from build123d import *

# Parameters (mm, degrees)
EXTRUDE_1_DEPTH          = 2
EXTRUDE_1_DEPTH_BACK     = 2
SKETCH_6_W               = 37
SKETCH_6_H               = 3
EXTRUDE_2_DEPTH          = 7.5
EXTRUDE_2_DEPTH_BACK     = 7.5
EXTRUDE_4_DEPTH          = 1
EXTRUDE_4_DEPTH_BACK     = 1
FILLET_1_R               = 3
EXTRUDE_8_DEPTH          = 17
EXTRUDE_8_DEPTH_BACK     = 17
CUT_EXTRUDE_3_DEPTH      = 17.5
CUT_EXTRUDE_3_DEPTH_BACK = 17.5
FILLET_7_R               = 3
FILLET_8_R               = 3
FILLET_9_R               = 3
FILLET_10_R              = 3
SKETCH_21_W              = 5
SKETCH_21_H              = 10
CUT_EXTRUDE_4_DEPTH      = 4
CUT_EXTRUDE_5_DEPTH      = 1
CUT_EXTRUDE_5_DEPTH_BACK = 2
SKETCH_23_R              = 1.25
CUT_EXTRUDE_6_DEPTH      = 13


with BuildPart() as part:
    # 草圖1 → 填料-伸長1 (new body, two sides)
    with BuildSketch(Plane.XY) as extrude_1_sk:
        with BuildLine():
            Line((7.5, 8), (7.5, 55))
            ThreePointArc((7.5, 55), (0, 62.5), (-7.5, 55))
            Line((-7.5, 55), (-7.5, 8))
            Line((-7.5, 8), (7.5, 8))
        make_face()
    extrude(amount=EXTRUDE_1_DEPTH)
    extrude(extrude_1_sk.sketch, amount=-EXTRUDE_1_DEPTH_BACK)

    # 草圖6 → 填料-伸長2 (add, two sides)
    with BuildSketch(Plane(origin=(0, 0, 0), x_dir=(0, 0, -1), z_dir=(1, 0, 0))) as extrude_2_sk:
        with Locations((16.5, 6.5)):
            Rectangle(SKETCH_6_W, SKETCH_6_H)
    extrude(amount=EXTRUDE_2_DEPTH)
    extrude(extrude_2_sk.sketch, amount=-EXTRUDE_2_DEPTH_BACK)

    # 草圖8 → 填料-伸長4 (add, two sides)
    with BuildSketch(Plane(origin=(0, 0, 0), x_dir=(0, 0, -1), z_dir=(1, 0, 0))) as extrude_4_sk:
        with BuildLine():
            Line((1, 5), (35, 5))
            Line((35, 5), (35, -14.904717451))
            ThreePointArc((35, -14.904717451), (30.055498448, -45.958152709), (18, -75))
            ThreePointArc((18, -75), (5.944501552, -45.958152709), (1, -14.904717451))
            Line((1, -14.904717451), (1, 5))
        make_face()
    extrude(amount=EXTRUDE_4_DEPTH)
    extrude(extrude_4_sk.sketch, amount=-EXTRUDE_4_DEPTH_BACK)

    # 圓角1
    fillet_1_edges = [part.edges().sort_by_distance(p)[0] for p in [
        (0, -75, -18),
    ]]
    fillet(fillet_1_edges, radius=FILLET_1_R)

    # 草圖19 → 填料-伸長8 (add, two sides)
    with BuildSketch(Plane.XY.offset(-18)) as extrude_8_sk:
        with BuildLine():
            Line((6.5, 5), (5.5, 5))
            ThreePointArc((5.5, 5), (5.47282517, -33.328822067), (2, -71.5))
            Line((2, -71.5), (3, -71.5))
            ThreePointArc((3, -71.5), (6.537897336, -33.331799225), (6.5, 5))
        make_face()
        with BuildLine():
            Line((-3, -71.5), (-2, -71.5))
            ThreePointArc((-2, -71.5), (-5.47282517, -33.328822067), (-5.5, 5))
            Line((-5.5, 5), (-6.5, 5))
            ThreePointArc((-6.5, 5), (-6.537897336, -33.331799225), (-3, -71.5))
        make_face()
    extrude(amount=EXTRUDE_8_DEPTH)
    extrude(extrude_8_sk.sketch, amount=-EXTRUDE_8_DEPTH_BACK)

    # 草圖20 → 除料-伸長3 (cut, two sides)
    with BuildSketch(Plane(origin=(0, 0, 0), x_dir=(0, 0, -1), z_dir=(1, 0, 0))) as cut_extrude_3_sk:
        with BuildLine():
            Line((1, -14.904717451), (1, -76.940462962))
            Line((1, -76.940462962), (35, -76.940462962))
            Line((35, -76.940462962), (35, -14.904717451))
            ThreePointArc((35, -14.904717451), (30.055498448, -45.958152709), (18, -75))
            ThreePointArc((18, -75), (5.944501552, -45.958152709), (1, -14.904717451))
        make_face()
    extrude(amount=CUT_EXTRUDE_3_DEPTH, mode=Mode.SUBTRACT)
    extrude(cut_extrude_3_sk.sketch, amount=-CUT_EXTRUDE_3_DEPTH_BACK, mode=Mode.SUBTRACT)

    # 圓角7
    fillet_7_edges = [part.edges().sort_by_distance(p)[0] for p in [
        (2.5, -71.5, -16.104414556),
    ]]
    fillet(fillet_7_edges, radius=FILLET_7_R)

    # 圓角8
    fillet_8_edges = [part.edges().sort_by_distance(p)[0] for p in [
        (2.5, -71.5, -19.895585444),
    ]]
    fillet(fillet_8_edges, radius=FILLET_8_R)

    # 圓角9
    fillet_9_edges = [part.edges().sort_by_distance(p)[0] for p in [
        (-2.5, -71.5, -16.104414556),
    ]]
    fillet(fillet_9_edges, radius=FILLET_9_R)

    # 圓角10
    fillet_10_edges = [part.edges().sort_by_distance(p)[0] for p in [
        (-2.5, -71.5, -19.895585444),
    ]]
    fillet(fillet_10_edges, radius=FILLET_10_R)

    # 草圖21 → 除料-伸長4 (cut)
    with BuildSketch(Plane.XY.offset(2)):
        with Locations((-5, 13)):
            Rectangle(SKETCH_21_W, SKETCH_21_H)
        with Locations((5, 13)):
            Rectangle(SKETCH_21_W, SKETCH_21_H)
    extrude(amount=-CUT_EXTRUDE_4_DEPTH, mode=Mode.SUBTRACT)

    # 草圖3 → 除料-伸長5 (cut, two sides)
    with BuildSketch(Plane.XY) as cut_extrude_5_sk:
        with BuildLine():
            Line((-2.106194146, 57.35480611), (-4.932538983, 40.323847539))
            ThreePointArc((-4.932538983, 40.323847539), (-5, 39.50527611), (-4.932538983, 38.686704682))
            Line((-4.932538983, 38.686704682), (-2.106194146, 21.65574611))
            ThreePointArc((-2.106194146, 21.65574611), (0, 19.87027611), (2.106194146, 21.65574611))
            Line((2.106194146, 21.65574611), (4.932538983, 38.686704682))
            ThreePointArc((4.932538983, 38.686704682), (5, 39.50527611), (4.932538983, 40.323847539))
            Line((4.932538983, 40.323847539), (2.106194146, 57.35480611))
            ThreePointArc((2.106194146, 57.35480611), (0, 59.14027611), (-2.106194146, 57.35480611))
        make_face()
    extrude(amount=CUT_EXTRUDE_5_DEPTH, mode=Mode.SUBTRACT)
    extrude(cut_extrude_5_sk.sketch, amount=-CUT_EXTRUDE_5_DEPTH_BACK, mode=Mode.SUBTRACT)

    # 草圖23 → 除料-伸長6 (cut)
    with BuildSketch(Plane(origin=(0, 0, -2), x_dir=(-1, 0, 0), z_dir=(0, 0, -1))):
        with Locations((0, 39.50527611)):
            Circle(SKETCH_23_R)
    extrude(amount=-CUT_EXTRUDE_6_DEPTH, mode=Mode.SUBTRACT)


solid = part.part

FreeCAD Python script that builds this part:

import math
import FreeCAD as App
import Part
import Sketcher
Q = App.Units.Quantity


def edges_at(feature, points):
    """Names of the edges that pass closest to the given points."""
    edges = feature.Shape.Edges
    near = lambda p: min(range(len(edges)), key=lambda i: edges[i].distToShape(Part.Vertex(*p))[0])
    return sorted({f"Edge{near(p) + 1}" for p in points})


def add_polygon(sketch, points):
    """Adds a closed chain of lines whose ends are joined by coincident constraints."""
    first, n = sketch.GeometryCount, len(points)
    for a, b in zip(points, points[1:] + points[:1]):
        sketch.addGeometry(Part.LineSegment(App.Vector(*a, 0), App.Vector(*b, 0)), False)
    for i in range(n):
        sketch.addConstraint(Sketcher.Constraint("Coincident", first + i, 2, first + (i + 1) % n, 1))

doc = App.newDocument("Part")
body = doc.addObject("PartDesign::Body", "Body")

# Sketch on XY plane
sketch1 = doc.addObject("Sketcher::SketchObject", "Sketch")
body.addObject(sketch1)
sketch1.AttachmentSupport = (doc.XY_Plane, [""])
sketch1.MapMode = "FlatFace"
sketch1.addGeometry(Part.LineSegment(App.Vector(8, 8, 0), App.Vector(8, 55, 0)), False)
sketch1.addGeometry(Part.ArcOfCircle(Part.Circle(App.Vector(0, 55, 0), App.Vector(0, 0, 1), 8), math.radians(0), math.radians(180)), False)
sketch1.addGeometry(Part.LineSegment(App.Vector(-8, 55, 0), App.Vector(-8, 8, 0)), False)
sketch1.addGeometry(Part.LineSegment(App.Vector(-8, 8, 0), App.Vector(8, 8, 0)), False)
sketch1.addConstraint(Sketcher.Constraint("Tangent", 0, 2, 1, 1))
sketch1.addConstraint(Sketcher.Constraint("Tangent", 1, 2, 2, 1))
sketch1.addConstraint(Sketcher.Constraint("Coincident", 2, 2, 3, 1))
sketch1.addConstraint(Sketcher.Constraint("Coincident", 3, 2, 0, 1))
sketch1.addConstraint(Sketcher.Constraint("Vertical", 0))
sketch1.addConstraint(Sketcher.Constraint("Vertical", 2))
sketch1.addConstraint(Sketcher.Constraint("Horizontal", 3))
sketch1.addConstraint(Sketcher.Constraint("PointOnObject", 1, 3, -2))
sketch1.addConstraint(Sketcher.Constraint("Radius", 1, Q("7.5 mm")))
sketch1.addConstraint(Sketcher.Constraint("DistanceY", 0, 1, 0, 2, Q("47 mm")))
sketch1.addConstraint(Sketcher.Constraint("DistanceY", -1, 1, 1, 3, Q("55 mm")))
pad1 = doc.addObject("PartDesign::Pad", "Pad")
body.addObject(pad1)
pad1.Profile = sketch1
pad1.Type = "TwoLengths"
pad1.Length = 2
pad1.Length2 = 2

# Sketch on YZ plane
sketch2 = doc.addObject("Sketcher::SketchObject", "Sketch001")
body.addObject(sketch2)
sketch2.AttachmentSupport = (doc.YZ_Plane, [""])
sketch2.MapMode = "FlatFace"
add_polygon(sketch2, [(8, 2), (5, 2), (5, -35), (8, -35)])  # lines 0-3
sketch2.addConstraint(Sketcher.Constraint("Horizontal", 0))
sketch2.addConstraint(Sketcher.Constraint("Vertical", 1))
sketch2.addConstraint(Sketcher.Constraint("Horizontal", 2))
sketch2.addConstraint(Sketcher.Constraint("Vertical", 3))
sketch2.addConstraint(Sketcher.Constraint("DistanceX", 0, 2, 0, 1, Q("3 mm")))
sketch2.addConstraint(Sketcher.Constraint("DistanceY", 1, 2, 1, 1, Q("37 mm")))
sketch2.addConstraint(Sketcher.Constraint("DistanceX", -1, 1, 0, 2, Q("5 mm")))
sketch2.addConstraint(Sketcher.Constraint("DistanceY", -1, 1, 0, 2, Q("2 mm")))
pad2 = doc.addObject("PartDesign::Pad", "Pad001")
body.addObject(pad2)
pad2.Profile = sketch2
pad2.Type = "TwoLengths"
pad2.Length = 7.5
pad2.Length2 = 7.5

# Sketch on YZ plane
sketch3 = doc.addObject("Sketcher::SketchObject", "Sketch002")
body.addObject(sketch3)
sketch3.AttachmentSupport = (doc.YZ_Plane, [""])
sketch3.MapMode = "FlatFace"
sketch3.addGeometry(Part.LineSegment(App.Vector(5, -35, 0), App.Vector(5, -1, 0)), False)
sketch3.addGeometry(Part.LineSegment(App.Vector(5, -1, 0), App.Vector(-15, -1, 0)), False)
sketch3.addGeometry(Part.ArcOfCircle(Part.Circle(App.Vector(-10, -135, 0), App.Vector(0, 0, 1), 134), math.radians(92), math.radians(119)), False)
sketch3.addGeometry(Part.ArcOfCircle(Part.Circle(App.Vector(-10, 99, 0), App.Vector(0, 0, 1), 134), math.radians(-119), math.radians(-92)), False)
sketch3.addGeometry(Part.LineSegment(App.Vector(-15, -35, 0), App.Vector(5, -35, 0)), False)
sketch3.addConstraint(Sketcher.Constraint("Coincident", 0, 2, 1, 1))
sketch3.addConstraint(Sketcher.Constraint("Coincident", 1, 2, 2, 1))
sketch3.addConstraint(Sketcher.Constraint("Coincident", 2, 2, 3, 1))
sketch3.addConstraint(Sketcher.Constraint("Coincident", 3, 2, 4, 1))
sketch3.addConstraint(Sketcher.Constraint("Coincident", 4, 2, 0, 1))
sketch3.addConstraint(Sketcher.Constraint("Vertical", 0))
sketch3.addConstraint(Sketcher.Constraint("Horizontal", 1))
sketch3.addConstraint(Sketcher.Constraint("Horizontal", 4))
sketch3.addConstraint(Sketcher.Constraint("Equal", 2, 3))
sketch3.addConstraint(Sketcher.Constraint("Vertical", 2, 3, 3, 3))
sketch3.addConstraint(Sketcher.Constraint("Vertical", 1, 2, 3, 2))
sketch3.addConstraint(Sketcher.Constraint("DistanceY", 0, 1, 0, 2, Q("34 mm")))
sketch3.addConstraint(Sketcher.Constraint("DistanceX", -1, 1, 0, 2, Q("5 mm")))
sketch3.addConstraint(Sketcher.Constraint("DistanceY", 0, 2, -1, 1, Q("1 mm")))
sketch3.addConstraint(Sketcher.Constraint("DistanceX", 2, 2, -1, 1, Q("75 mm")))
sketch3.addConstraint(Sketcher.Constraint("Radius", 2, Q("133.796744 mm")))
sketch3.addConstraint(Sketcher.Constraint("DistanceX", 1, 2, 1, 1, Q("19.904717 mm")))
pad3 = doc.addObject("PartDesign::Pad", "Pad002")
body.addObject(pad3)
pad3.Profile = sketch3
pad3.Type = "TwoLengths"
pad3.Length = 1
pad3.Length2 = 1
doc.recompute()

fillet = doc.addObject("PartDesign::Fillet", "Fillet")
body.addObject(fillet)
fillet.Base = (pad3, edges_at(pad3, [(0, -75, -18)]))
fillet.Radius = 3

# Sketch on XY plane
sketch4 = doc.addObject("Sketcher::SketchObject", "Sketch003")
body.addObject(sketch4)
sketch4.AttachmentSupport = (doc.XY_Plane, [""])
sketch4.MapMode = "FlatFace"
sketch4.AttachmentOffset = App.Placement(App.Vector(0, 0, -18), App.Rotation())
sketch4.addGeometry(Part.LineSegment(App.Vector(6.5, 5, 0), App.Vector(5.5, 5, 0)), False)
sketch4.addGeometry(Part.ArcOfCircle(Part.Circle(App.Vector(-420, -13.9, 0), App.Vector(0, 0, 1), 425.9), math.radians(-7.78), math.radians(2.54)), False)
sketch4.addGeometry(Part.LineSegment(App.Vector(2, -71.5, 0), App.Vector(3, -71.5, 0)), False)
sketch4.addGeometry(Part.ArcOfCircle(Part.Circle(App.Vector(-403.5, -14.6, 0), App.Vector(0, 0, 1), 410.5), math.radians(-7.97), math.radians(2.73)), False)
sketch4.addGeometry(Part.LineSegment(App.Vector(-3, -71.5, 0), App.Vector(-2, -71.5, 0)), False)
sketch4.addGeometry(Part.ArcOfCircle(Part.Circle(App.Vector(420, -13.9, 0), App.Vector(0, 0, 1), 425.9), math.radians(177.46), math.radians(187.78)), False)
sketch4.addGeometry(Part.LineSegment(App.Vector(-5.5, 5, 0), App.Vector(-6.5, 5, 0)), False)
sketch4.addGeometry(Part.ArcOfCircle(Part.Circle(App.Vector(403.5, -14.6, 0), App.Vector(0, 0, 1), 410.5), math.radians(177.27), math.radians(187.97)), False)
sketch4.addConstraint(Sketcher.Constraint("Coincident", 0, 2, 1, 2))
sketch4.addConstraint(Sketcher.Constraint("Coincident", 1, 1, 2, 1))
sketch4.addConstraint(Sketcher.Constraint("Coincident", 2, 2, 3, 1))
sketch4.addConstraint(Sketcher.Constraint("Coincident", 3, 2, 0, 1))
sketch4.addConstraint(Sketcher.Constraint("Coincident", 4, 2, 5, 2))
sketch4.addConstraint(Sketcher.Constraint("Coincident", 5, 1, 6, 1))
sketch4.addConstraint(Sketcher.Constraint("Coincident", 6, 2, 7, 1))
sketch4.addConstraint(Sketcher.Constraint("Coincident", 7, 2, 4, 1))
sketch4.addConstraint(Sketcher.Constraint("Horizontal", 0))
sketch4.addConstraint(Sketcher.Constraint("Horizontal", 2))
sketch4.addConstraint(Sketcher.Constraint("Horizontal", 4))
sketch4.addConstraint(Sketcher.Constraint("Horizontal", 6))
sketch4.addConstraint(Sketcher.Constraint("Equal", 1, 5))
sketch4.addConstraint(Sketcher.Constraint("Equal", 3, 7))
sketch4.addConstraint(Sketcher.Constraint("Symmetric", 1, 3, 5, 3, -2))
sketch4.addConstraint(Sketcher.Constraint("Symmetric", 3, 3, 7, 3, -2))
sketch4.addConstraint(Sketcher.Constraint("Horizontal", 2, 2, 4, 2))
sketch4.addConstraint(Sketcher.Constraint("Equal", 0, 2))
sketch4.addConstraint(Sketcher.Constraint("DistanceX", 0, 2, 0, 1, Q("1 mm")))
sketch4.addConstraint(Sketcher.Constraint("DistanceX", 6, 2, 6, 1, Q("1 mm")))
sketch4.addConstraint(Sketcher.Constraint("DistanceY", -1, 1, 0, 2, Q("5 mm")))
sketch4.addConstraint(Sketcher.Constraint("DistanceX", -1, 1, 1, 1, Q("2 mm")))
sketch4.addConstraint(Sketcher.Constraint("DistanceX", 5, 1, 0, 2, Q("11 mm")))
sketch4.addConstraint(Sketcher.Constraint("DistanceY", 2, 2, -1, 1, Q("71.5 mm")))
sketch4.addConstraint(Sketcher.Constraint("Radius", 3, Q("410.480188 mm")))
sketch4.addConstraint(Sketcher.Constraint("Radius", 1, Q("425.917907 mm")))
pad4 = doc.addObject("PartDesign::Pad", "Pad003")
body.addObject(pad4)
pad4.Profile = sketch4
pad4.Type = "TwoLengths"
pad4.Length = 17
pad4.Length2 = 17

# Sketch on YZ plane
sketch5 = doc.addObject("Sketcher::SketchObject", "Sketch004")
body.addObject(sketch5)
sketch5.AttachmentSupport = (doc.YZ_Plane, [""])
sketch5.MapMode = "FlatFace"
sketch5.addGeometry(Part.LineSegment(App.Vector(-15, -1, 0), App.Vector(-77, -1, 0)), False)
sketch5.addGeometry(Part.LineSegment(App.Vector(-77, -1, 0), App.Vector(-77, -35, 0)), False)
sketch5.addGeometry(Part.LineSegment(App.Vector(-77, -35, 0), App.Vector(-15, -35, 0)), False)
sketch5.addGeometry(Part.ArcOfCircle(Part.Circle(App.Vector(-10, 99, 0), App.Vector(0, 0, 1), 134), math.radians(-119), math.radians(-92)), False)
sketch5.addGeometry(Part.ArcOfCircle(Part.Circle(App.Vector(-10, -135, 0), App.Vector(0, 0, 1), 134), math.radians(92), math.radians(119)), False)
sketch5.addConstraint(Sketcher.Constraint("Coincident", 0, 2, 1, 1))
sketch5.addConstraint(Sketcher.Constraint("Coincident", 1, 2, 2, 1))
sketch5.addConstraint(Sketcher.Constraint("Coincident", 2, 2, 3, 2))
sketch5.addConstraint(Sketcher.Constraint("Coincident", 3, 1, 4, 2))
sketch5.addConstraint(Sketcher.Constraint("Coincident", 4, 1, 0, 1))
sketch5.addConstraint(Sketcher.Constraint("Horizontal", 0))
sketch5.addConstraint(Sketcher.Constraint("Vertical", 1))
sketch5.addConstraint(Sketcher.Constraint("Horizontal", 2))
sketch5.addConstraint(Sketcher.Constraint("Equal", 3, 4))
sketch5.addConstraint(Sketcher.Constraint("Vertical", 3, 3, 4, 3))
sketch5.addConstraint(Sketcher.Constraint("Vertical", 2, 2, 4, 1))
sketch5.addConstraint(Sketcher.Constraint("DistanceY", 1, 2, 1, 1, Q("34 mm")))
sketch5.addConstraint(Sketcher.Constraint("DistanceY", 0, 2, -1, 1, Q("1 mm")))
sketch5.addConstraint(Sketcher.Constraint("DistanceX", 3, 1, -1, 1, Q("75 mm")))
sketch5.addConstraint(Sketcher.Constraint("Radius", 3, Q("133.796744 mm")))
sketch5.addConstraint(Sketcher.Constraint("DistanceX", 0, 2, 0, 1, Q("62.035746 mm")))
sketch5.addConstraint(Sketcher.Constraint("DistanceX", 2, 2, 4, 3, Q("5.36636 mm")))
pocket1 = doc.addObject("PartDesign::Pocket", "Pocket")
body.addObject(pocket1)
pocket1.Profile = sketch5
pocket1.Type = "ThroughAll"
pocket1.Midplane = True
doc.recompute()

fillet2 = doc.addObject("PartDesign::Fillet", "Fillet001")
body.addObject(fillet2)
fillet2.Base = (pocket1, edges_at(pocket1, [(2.5, -71.5, -16.104)]))
fillet2.Radius = 3
doc.recompute()

fillet3 = doc.addObject("PartDesign::Fillet", "Fillet002")
body.addObject(fillet3)
fillet3.Base = (fillet2, edges_at(fillet2, [(2.5, -71.5, -19.896)]))
fillet3.Radius = 3
doc.recompute()

fillet4 = doc.addObject("PartDesign::Fillet", "Fillet003")
body.addObject(fillet4)
fillet4.Base = (fillet3, edges_at(fillet3, [(-2.5, -71.5, -16.104)]))
fillet4.Radius = 3
doc.recompute()

fillet5 = doc.addObject("PartDesign::Fillet", "Fillet004")
body.addObject(fillet5)
fillet5.Base = (fillet4, edges_at(fillet4, [(-2.5, -71.5, -19.896)]))
fillet5.Radius = 3

# Sketch on XY plane
sketch6 = doc.addObject("Sketcher::SketchObject", "Sketch005")
body.addObject(sketch6)
sketch6.AttachmentSupport = (doc.XY_Plane, [""])
sketch6.MapMode = "FlatFace"
sketch6.AttachmentOffset = App.Placement(App.Vector(0, 0, 2), App.Rotation())
add_polygon(sketch6, [(-8, 18), (-8, 8), (-2, 8), (-2, 18)])  # lines 0-3
add_polygon(sketch6, [(2, 18), (2, 8), (8, 8), (8, 18)])  # lines 4-7
sketch6.addConstraint(Sketcher.Constraint("Vertical", 0))
sketch6.addConstraint(Sketcher.Constraint("Horizontal", 1))
sketch6.addConstraint(Sketcher.Constraint("Vertical", 2))
sketch6.addConstraint(Sketcher.Constraint("Horizontal", 3))
sketch6.addConstraint(Sketcher.Constraint("Vertical", 4))
sketch6.addConstraint(Sketcher.Constraint("Horizontal", 5))
sketch6.addConstraint(Sketcher.Constraint("Vertical", 6))
sketch6.addConstraint(Sketcher.Constraint("Horizontal", 7))
sketch6.addConstraint(Sketcher.Constraint("Symmetric", 1, 2, 4, 2, -2))
sketch6.addConstraint(Sketcher.Constraint("Symmetric", 3, 2, 6, 2, -2))
sketch6.addConstraint(Sketcher.Constraint("DistanceX", 1, 1, 1, 2, Q("5 mm")))
sketch6.addConstraint(Sketcher.Constraint("DistanceY", 0, 2, 0, 1, Q("10 mm")))
sketch6.addConstraint(Sketcher.Constraint("DistanceY", -1, 1, 0, 2, Q("8 mm")))
sketch6.addConstraint(Sketcher.Constraint("DistanceX", 1, 2, 4, 2, Q("5 mm")))
pocket2 = doc.addObject("PartDesign::Pocket", "Pocket001")
body.addObject(pocket2)
pocket2.Profile = sketch6
pocket2.Length = 4

# Sketch on XY plane
sketch7 = doc.addObject("Sketcher::SketchObject", "Sketch006")
body.addObject(sketch7)
sketch7.AttachmentSupport = (doc.XY_Plane, [""])
sketch7.MapMode = "FlatFace"
sketch7.addGeometry(Part.LineSegment(App.Vector(-2.1, 57.4, 0), App.Vector(-4.9, 40.3, 0)), False)
sketch7.addGeometry(Part.ArcOfCircle(Part.Circle(App.Vector(0, 39.5, 0), App.Vector(0, 0, 1), 5), math.radians(170.58), math.radians(189.42)), False)
sketch7.addGeometry(Part.LineSegment(App.Vector(-4.9, 38.7, 0), App.Vector(-2.1, 21.7, 0)), False)
sketch7.addGeometry(Part.ArcOfCircle(Part.Circle(App.Vector(0, 22, 0), App.Vector(0, 0, 1), 2.1), math.radians(-171), math.radians(-9)), False)
sketch7.addGeometry(Part.LineSegment(App.Vector(2.1, 21.7, 0), App.Vector(4.9, 38.7, 0)), False)
sketch7.addGeometry(Part.ArcOfCircle(Part.Circle(App.Vector(0, 39.5, 0), App.Vector(0, 0, 1), 5), math.radians(-9.42), math.radians(9.42)), False)
sketch7.addGeometry(Part.LineSegment(App.Vector(4.9, 40.3, 0), App.Vector(2.1, 57.4, 0)), False)
sketch7.addGeometry(Part.ArcOfCircle(Part.Circle(App.Vector(0, 57, 0), App.Vector(0, 0, 1), 2.1), math.radians(9), math.radians(171)), False)
sketch7.addConstraint(Sketcher.Constraint("Tangent", 0, 2, 1, 1))
sketch7.addConstraint(Sketcher.Constraint("Tangent", 1, 2, 2, 1))
sketch7.addConstraint(Sketcher.Constraint("Tangent", 2, 2, 3, 1))
sketch7.addConstraint(Sketcher.Constraint("Tangent", 3, 2, 4, 1))
sketch7.addConstraint(Sketcher.Constraint("Tangent", 4, 2, 5, 1))
sketch7.addConstraint(Sketcher.Constraint("Tangent", 5, 2, 6, 1))
sketch7.addConstraint(Sketcher.Constraint("Tangent", 6, 2, 7, 1))
sketch7.addConstraint(Sketcher.Constraint("Tangent", 7, 2, 0, 1))
sketch7.addConstraint(Sketcher.Constraint("Coincident", 5, 3, 1, 3))
sketch7.addConstraint(Sketcher.Constraint("Equal", 1, 5))
sketch7.addConstraint(Sketcher.Constraint("Equal", 3, 7))
sketch7.addConstraint(Sketcher.Constraint("Symmetric", 2, 2, 3, 2, -2))
sketch7.addConstraint(Sketcher.Constraint("PointOnObject", 7, 3, -2))
sketch7.addConstraint(Sketcher.Constraint("Parallel", 0, 4))
sketch7.addConstraint(Sketcher.Constraint("Radius", 1, Q("5 mm")))
sketch7.addConstraint(Sketcher.Constraint("Radius", 3, Q("2.135 mm")))
sketch7.addConstraint(Sketcher.Constraint("DistanceY", 3, 3, 7, 3, Q("35 mm")))
sketch7.addConstraint(Sketcher.Constraint("DistanceY", -1, 1, 1, 3, Q("39.505276 mm")))
pocket3 = doc.addObject("PartDesign::Pocket", "Pocket002")
body.addObject(pocket3)
pocket3.Profile = sketch7
pocket3.Type = "TwoLengths"
pocket3.Length = 1
pocket3.Length2 = 2
pocket3.Reversed = True

# Sketch on XY plane
sketch8 = doc.addObject("Sketcher::SketchObject", "Sketch007")
body.addObject(sketch8)
sketch8.AttachmentSupport = (doc.XY_Plane, [""])
sketch8.MapMode = "FlatFace"
sketch8.AttachmentOffset = App.Placement(App.Vector(0, 0, -2), App.Rotation())
sketch8.addGeometry(Part.Circle(App.Vector(0, 39.5, 0), App.Vector(0, 0, 1), 1.2), False)
sketch8.addConstraint(Sketcher.Constraint("PointOnObject", 0, 3, -2))
sketch8.addConstraint(Sketcher.Constraint("Diameter", 0, Q("2.5 mm")))
sketch8.addConstraint(Sketcher.Constraint("DistanceY", -1, 1, 0, 3, Q("39.505276 mm")))
pocket4 = doc.addObject("PartDesign::Pocket", "Pocket003")
body.addObject(pocket4)
pocket4.Profile = sketch8
pocket4.Length = 13
pocket4.Reversed = True

doc.recompute()
